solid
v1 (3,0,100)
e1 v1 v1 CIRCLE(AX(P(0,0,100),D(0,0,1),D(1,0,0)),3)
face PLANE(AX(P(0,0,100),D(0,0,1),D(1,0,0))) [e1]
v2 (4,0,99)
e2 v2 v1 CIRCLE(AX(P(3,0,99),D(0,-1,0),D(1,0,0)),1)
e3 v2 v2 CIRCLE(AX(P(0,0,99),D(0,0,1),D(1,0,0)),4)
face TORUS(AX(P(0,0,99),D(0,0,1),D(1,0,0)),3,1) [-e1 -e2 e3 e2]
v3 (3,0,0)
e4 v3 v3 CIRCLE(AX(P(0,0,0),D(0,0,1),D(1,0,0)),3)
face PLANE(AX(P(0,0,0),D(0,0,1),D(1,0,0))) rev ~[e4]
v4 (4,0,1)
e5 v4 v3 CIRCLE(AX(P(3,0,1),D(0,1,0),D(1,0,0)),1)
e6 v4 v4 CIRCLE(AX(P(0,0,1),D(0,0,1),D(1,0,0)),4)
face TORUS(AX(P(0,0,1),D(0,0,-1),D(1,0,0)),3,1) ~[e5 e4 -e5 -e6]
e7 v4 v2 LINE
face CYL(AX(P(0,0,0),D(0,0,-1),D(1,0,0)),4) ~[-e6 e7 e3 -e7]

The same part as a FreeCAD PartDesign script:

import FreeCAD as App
import Part
import Sketcher
Q = App.Units.Quantity


def edges_at(feature, points):
    """Names of the edges that pass closest to the given points."""
    edges = feature.Shape.Edges
    near = lambda p: min(range(len(edges)), key=lambda i: edges[i].distToShape(Part.Vertex(*p))[0])
    return sorted({f"Edge{near(p) + 1}" for p in points})

doc = App.newDocument("Part")
body = doc.addObject("PartDesign::Body", "Body")

# Sketch on XY plane
sketch1 = body.newObject("Sketcher::SketchObject", "Sketch")
sketch1.AttachmentSupport = (doc.getObject("XY_Plane"), [""])
sketch1.MapMode = "FlatFace"
sketch1.addGeometry(Part.Circle(App.Vector(0, 0, 0), App.Vector(0, 0, 1), 4), False)
sketch1.addConstraint([
    Sketcher.Constraint("Coincident", 0, 3, -1, 1),
    Sketcher.Constraint("Diameter", 0, Q("8 mm")),
])
pad1 = body.newObject("PartDesign::Pad", "Pad")
pad1.Profile = sketch1
pad1.Length = 100
doc.recompute()

fillet = body.newObject("PartDesign::Fillet", "Fillet")
fillet.Base = (pad1, edges_at(pad1, [(-4, 0, 100), (-4, 0, 0)]))
fillet.Radius = 1

doc.recompute()
